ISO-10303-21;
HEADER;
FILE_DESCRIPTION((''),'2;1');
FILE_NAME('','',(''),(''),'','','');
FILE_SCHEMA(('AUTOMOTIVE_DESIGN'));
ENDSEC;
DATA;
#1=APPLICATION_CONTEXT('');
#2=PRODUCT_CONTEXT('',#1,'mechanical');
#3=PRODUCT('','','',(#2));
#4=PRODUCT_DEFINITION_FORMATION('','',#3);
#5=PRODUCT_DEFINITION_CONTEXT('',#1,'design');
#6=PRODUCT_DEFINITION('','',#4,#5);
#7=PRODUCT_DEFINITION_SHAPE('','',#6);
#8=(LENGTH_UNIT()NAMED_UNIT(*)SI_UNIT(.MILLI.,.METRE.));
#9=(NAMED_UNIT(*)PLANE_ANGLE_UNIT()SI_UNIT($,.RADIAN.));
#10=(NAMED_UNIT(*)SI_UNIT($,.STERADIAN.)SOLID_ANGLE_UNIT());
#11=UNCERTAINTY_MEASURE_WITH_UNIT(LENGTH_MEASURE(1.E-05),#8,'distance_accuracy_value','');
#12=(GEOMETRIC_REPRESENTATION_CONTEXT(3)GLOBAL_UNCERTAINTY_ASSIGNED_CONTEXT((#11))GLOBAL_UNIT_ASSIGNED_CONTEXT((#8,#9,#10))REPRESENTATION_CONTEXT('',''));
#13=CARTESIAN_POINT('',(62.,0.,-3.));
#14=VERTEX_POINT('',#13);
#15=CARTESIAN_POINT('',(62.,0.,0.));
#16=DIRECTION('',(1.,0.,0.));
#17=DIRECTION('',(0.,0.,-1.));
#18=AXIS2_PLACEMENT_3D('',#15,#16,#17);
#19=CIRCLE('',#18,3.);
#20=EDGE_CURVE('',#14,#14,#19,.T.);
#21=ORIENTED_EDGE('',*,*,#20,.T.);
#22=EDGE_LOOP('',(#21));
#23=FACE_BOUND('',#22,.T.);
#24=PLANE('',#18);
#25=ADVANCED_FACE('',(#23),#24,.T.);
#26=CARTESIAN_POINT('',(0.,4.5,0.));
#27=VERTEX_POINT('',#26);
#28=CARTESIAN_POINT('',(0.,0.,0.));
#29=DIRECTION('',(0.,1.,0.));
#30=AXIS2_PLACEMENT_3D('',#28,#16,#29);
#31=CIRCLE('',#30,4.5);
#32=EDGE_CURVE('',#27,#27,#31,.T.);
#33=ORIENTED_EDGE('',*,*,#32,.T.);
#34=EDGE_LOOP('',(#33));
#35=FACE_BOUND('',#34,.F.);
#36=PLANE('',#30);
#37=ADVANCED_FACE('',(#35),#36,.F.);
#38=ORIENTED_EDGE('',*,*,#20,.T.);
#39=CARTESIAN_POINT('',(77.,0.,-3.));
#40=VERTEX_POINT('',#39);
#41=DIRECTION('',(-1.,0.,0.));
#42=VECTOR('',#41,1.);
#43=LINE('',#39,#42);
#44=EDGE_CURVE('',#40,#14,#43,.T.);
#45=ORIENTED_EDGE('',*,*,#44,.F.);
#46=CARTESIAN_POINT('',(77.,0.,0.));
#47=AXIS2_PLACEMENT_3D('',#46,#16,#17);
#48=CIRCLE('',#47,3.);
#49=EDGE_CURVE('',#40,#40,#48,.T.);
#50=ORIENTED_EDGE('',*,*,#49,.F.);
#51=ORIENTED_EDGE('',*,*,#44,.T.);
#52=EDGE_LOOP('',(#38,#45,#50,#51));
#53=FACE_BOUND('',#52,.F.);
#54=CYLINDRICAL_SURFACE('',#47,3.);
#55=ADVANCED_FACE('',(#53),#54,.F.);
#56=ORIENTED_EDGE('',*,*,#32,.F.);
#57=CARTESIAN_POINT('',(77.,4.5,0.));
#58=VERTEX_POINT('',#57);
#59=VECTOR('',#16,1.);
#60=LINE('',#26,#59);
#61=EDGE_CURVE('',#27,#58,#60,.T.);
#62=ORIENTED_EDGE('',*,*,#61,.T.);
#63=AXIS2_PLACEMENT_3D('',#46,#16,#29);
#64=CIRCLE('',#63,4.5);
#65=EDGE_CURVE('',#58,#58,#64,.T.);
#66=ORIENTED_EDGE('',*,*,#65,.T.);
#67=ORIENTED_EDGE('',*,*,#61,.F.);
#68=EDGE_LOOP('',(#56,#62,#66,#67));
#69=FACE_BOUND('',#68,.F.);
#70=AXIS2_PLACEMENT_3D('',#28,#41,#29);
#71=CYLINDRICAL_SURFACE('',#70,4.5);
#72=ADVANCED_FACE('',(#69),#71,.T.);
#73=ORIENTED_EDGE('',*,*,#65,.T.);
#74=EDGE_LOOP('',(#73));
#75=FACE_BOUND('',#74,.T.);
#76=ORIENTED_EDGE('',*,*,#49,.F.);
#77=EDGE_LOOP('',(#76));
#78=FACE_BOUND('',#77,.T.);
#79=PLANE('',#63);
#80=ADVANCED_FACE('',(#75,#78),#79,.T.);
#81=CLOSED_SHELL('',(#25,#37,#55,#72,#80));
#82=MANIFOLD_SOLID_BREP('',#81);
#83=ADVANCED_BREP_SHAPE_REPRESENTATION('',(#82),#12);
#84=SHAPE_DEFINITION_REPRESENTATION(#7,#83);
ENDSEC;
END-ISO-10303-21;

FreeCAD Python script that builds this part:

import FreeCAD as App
import Part
import Sketcher

V = App.Vector
Q = App.Units.Quantity

doc = App.newDocument("Part")
body = doc.addObject("PartDesign::Body", "Body")

sketch1 = doc.addObject("Sketcher::SketchObject", "Sketch")
body.addObject(sketch1)
sketch1.AttachmentSupport = (doc.YZ_Plane, [""])
sketch1.MapMode = "FlatFace"
sketch1.addGeometry(Part.Circle(V(0, 0, 0), V(0, 0, 1), 4.5), False)
sketch1.addConstraint(Sketcher.Constraint("Coincident", 0, 3, -1, 1))
sketch1.addConstraint(Sketcher.Constraint("Diameter", 0, Q("9 mm")))
pad1 = doc.addObject("PartDesign::Pad", "Pad")
body.addObject(pad1)
pad1.Profile = sketch1
pad1.Length = 77

sketch2 = doc.addObject("Sketcher::SketchObject", "Sketch001")
body.addObject(sketch2)
sketch2.AttachmentSupport = (doc.YZ_Plane, [""])
sketch2.MapMode = "FlatFace"
sketch2.AttachmentOffset = App.Placement(V(0, 0, 77), App.Rotation())
sketch2.addGeometry(Part.Circle(V(0, 0, 0), V(0, 0, 1), 3), False)
sketch2.addConstraint(Sketcher.Constraint("Coincident", 0, 3, -1, 1))
sketch2.addConstraint(Sketcher.Constraint("Diameter", 0, Q("6 mm")))
pocket1 = doc.addObject("PartDesign::Pocket", "Pocket")
body.addObject(pocket1)
pocket1.Profile = sketch2
pocket1.Length = 15

doc.recompute()
